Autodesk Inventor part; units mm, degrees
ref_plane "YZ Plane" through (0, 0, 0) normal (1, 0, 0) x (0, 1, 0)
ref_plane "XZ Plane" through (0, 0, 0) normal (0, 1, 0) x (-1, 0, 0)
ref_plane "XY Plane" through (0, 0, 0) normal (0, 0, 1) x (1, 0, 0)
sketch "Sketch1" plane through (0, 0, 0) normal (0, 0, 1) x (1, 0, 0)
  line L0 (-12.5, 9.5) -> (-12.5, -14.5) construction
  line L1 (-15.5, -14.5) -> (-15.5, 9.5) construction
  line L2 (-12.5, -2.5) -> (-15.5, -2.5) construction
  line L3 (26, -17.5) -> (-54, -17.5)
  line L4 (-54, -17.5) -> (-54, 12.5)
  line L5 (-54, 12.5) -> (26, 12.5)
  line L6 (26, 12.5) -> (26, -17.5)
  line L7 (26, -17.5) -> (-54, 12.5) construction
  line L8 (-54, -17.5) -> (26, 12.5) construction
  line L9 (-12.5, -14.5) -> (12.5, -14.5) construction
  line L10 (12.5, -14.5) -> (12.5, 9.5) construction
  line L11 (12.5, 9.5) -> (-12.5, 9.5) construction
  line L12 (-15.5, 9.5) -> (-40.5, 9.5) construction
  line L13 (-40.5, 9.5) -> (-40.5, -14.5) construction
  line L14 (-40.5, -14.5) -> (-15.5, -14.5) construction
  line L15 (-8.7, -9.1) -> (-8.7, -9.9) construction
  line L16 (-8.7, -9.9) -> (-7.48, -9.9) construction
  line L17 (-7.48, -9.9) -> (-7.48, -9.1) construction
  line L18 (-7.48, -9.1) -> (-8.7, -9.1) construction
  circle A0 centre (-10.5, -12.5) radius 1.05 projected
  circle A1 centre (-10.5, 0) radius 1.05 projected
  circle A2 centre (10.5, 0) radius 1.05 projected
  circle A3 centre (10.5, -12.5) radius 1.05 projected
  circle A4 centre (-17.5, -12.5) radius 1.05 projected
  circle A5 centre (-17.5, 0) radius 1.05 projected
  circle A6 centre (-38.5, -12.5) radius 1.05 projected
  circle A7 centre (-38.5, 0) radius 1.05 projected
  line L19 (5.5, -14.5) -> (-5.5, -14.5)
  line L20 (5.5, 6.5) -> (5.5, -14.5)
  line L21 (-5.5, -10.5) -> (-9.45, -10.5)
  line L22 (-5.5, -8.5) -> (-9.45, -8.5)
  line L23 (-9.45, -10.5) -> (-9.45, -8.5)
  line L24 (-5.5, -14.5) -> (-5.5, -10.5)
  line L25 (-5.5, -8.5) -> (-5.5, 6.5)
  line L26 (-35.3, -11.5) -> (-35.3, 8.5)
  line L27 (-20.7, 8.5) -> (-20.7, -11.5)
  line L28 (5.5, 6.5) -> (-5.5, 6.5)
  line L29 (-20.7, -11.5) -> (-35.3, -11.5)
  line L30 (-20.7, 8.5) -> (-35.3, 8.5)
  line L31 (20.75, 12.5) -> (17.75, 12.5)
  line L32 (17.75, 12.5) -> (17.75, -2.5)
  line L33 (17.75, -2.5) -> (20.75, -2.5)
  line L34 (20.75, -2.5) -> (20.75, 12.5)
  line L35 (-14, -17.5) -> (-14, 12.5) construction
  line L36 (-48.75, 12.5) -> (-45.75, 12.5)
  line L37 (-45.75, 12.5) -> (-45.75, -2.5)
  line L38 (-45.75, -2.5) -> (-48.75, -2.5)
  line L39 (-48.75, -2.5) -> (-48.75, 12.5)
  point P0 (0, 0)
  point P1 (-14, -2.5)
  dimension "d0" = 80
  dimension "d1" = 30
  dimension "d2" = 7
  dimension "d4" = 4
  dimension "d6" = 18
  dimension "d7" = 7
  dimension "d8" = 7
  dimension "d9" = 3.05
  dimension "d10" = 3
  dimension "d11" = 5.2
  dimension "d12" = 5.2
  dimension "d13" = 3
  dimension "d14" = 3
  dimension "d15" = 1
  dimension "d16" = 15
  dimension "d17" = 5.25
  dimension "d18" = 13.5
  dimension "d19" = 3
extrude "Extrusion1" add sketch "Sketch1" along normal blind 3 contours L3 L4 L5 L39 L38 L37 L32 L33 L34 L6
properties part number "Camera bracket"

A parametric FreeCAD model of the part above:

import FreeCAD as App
import Part
import Sketcher

V = App.Vector
Q = App.Units.Quantity


def add_polygon(sketch, points):
    """Adds a closed chain of lines whose ends are joined by coincident constraints."""
    first, n = sketch.GeometryCount, len(points)
    for a, b in zip(points, points[1:] + points[:1]):
        sketch.addGeometry(Part.LineSegment(App.Vector(*a, 0), App.Vector(*b, 0)), False)
    for i in range(n):
        sketch.addConstraint(Sketcher.Constraint("Coincident", first + i, 2, first + (i + 1) % n, 1))

doc = App.newDocument("Part")
body = doc.addObject("PartDesign::Body", "Body")

# Sketch on XY plane
sketch1 = body.newObject("Sketcher::SketchObject", "Sketch")
sketch1.AttachmentSupport = (doc.getObject("XY_Plane"), [""])
sketch1.MapMode = "FlatFace"
add_polygon(sketch1, [(-54, -17.5), (26, -17.5), (26, 12.5), (20.8, 12.5), (20.8, -2.5), (17.8, -2.5), (17.8, 12.5), (-45.8, 12.5), (-45.8, -2.5), (-48.8, -2.5), (-48.8, 12.5), (-54, 12.5)])  # lines 0-11
sketch1.addGeometry(Part.Circle(V(-38.5, -12.5, 0), V(0, 0, 1), 1.1), False)  # 12
sketch1.addGeometry(Part.Circle(V(-17.5, -12.5, 0), V(0, 0, 1), 1.1), False)  # 13
sketch1.addGeometry(Part.Circle(V(-10.5, -12.5, 0), V(0, 0, 1), 1.1), False)  # 14
sketch1.addGeometry(Part.Circle(V(10.5, -12.5, 0), V(0, 0, 1), 1.1), False)  # 15
add_polygon(sketch1, [(5.5, 6.5), (5.5, -14.5), (-5.5, -14.5), (-5.5, -10.5), (-9.4, -10.5), (-9.4, -8.5), (-5.5, -8.5), (-5.5, 6.5)])  # lines 16-23
sketch1.addGeometry(Part.Circle(V(-38.5, 0, 0), V(0, 0, 1), 1.1), False)  # 24
add_polygon(sketch1, [(-20.7, -11.5), (-35.3, -11.5), (-35.3, 8.5), (-20.7, 8.5)])  # lines 25-28
sketch1.addGeometry(Part.Circle(V(-17.5, 0, 0), V(0, 0, 1), 1.1), False)  # 29
sketch1.addGeometry(Part.Circle(V(-10.5, 0, 0), V(0, 0, 1), 1.1), False)  # 30
sketch1.addGeometry(Part.Circle(V(10.5, 0, 0), V(0, 0, 1), 1.1), False)  # 31
sketch1.addConstraint(Sketcher.Constraint("Horizontal", 0))
sketch1.addConstraint(Sketcher.Constraint("Vertical", 1))
sketch1.addConstraint(Sketcher.Constraint("Horizontal", 2))
sketch1.addConstraint(Sketcher.Constraint("Vertical", 3))
sketch1.addConstraint(Sketcher.Constraint("Horizontal", 4))
sketch1.addConstraint(Sketcher.Constraint("Vertical", 5))
sketch1.addConstraint(Sketcher.Constraint("Horizontal", 6))
sketch1.addConstraint(Sketcher.Constraint("Vertical", 7))
sketch1.addConstraint(Sketcher.Constraint("Horizontal", 8))
sketch1.addConstraint(Sketcher.Constraint("Vertical", 9))
sketch1.addConstraint(Sketcher.Constraint("Horizontal", 10))
sketch1.addConstraint(Sketcher.Constraint("Vertical", 11))
sketch1.addConstraint(Sketcher.Constraint("Vertical", 16))
sketch1.addConstraint(Sketcher.Constraint("Horizontal", 17))
sketch1.addConstraint(Sketcher.Constraint("Vertical", 18))
sketch1.addConstraint(Sketcher.Constraint("Horizontal", 19))
sketch1.addConstraint(Sketcher.Constraint("Vertical", 20))
sketch1.addConstraint(Sketcher.Constraint("Horizontal", 21))
sketch1.addConstraint(Sketcher.Constraint("Vertical", 22))
sketch1.addConstraint(Sketcher.Constraint("Horizontal", 23))
sketch1.addConstraint(Sketcher.Constraint("Horizontal", 25))
sketch1.addConstraint(Sketcher.Constraint("Vertical", 26))
sketch1.addConstraint(Sketcher.Constraint("Horizontal", 27))
sketch1.addConstraint(Sketcher.Constraint("Vertical", 28))
sketch1.addConstraint(Sketcher.Constraint("Equal", 12, 13))
sketch1.addConstraint(Sketcher.Constraint("Equal", 13, 14))
sketch1.addConstraint(Sketcher.Constraint("Equal", 14, 15))
sketch1.addConstraint(Sketcher.Constraint("Equal", 15, 24))
sketch1.addConstraint(Sketcher.Constraint("Equal", 24, 29))
sketch1.addConstraint(Sketcher.Constraint("Equal", 29, 30))
sketch1.addConstraint(Sketcher.Constraint("Equal", 30, 31))
sketch1.addConstraint(Sketcher.Constraint("Symmetric", 30, 3, 31, 3, -1, 1))
sketch1.addConstraint(Sketcher.Constraint("Symmetric", 14, 3, 15, 3, -2))
sketch1.addConstraint(Sketcher.Constraint("PointOnObject", 24, 3, -1))
sketch1.addConstraint(Sketcher.Constraint("PointOnObject", 29, 3, -1))
sketch1.addConstraint(Sketcher.Constraint("PointOnObject", 30, 3, -1))
sketch1.addConstraint(Sketcher.Constraint("Horizontal", 12, 3, 13, 3))
sketch1.addConstraint(Sketcher.Constraint("Horizontal", 13, 3, 14, 3))
sketch1.addConstraint(Sketcher.Constraint("Horizontal", 2, 2, 5, 2))
sketch1.addConstraint(Sketcher.Constraint("Horizontal", 4, 2, 7, 2))
sketch1.addConstraint(Sketcher.Constraint("Horizontal", 6, 2, 9, 2))
sketch1.addConstraint(Sketcher.Constraint("Vertical", 12, 3, 24, 3))
sketch1.addConstraint(Sketcher.Constraint("Vertical", 13, 3, 29, 3))
sketch1.addConstraint(Sketcher.Constraint("Vertical", 14, 3, 30, 3))
sketch1.addConstraint(Sketcher.Constraint("Vertical", 18, 2, 21, 2))
sketch1.addConstraint(Sketcher.Constraint("Equal", 4, 8))
sketch1.addConstraint(Sketcher.Constraint("Equal", 2, 10))
sketch1.addConstraint(Sketcher.Constraint("Equal", 9, 22))
sketch1.addConstraint(Sketcher.Constraint("DistanceX", 0, 1, 0, 2, Q("80 mm")))
sketch1.addConstraint(Sketcher.Constraint("DistanceX", 4, 2, 4, 1, Q("3 mm")))
sketch1.addConstraint(Sketcher.Constraint("DistanceY", 1, 1, 1, 2, Q("30 mm")))
sketch1.addConstraint(Sketcher.Constraint("DistanceY", 3, 2, 3, 1, Q("15 mm")))
sketch1.addConstraint(Sketcher.Constraint("DistanceY", 18, 1, 18, 2, Q("4 mm")))
sketch1.addConstraint(Sketcher.Constraint("DistanceX", 13, 3, 14, 3, Q("7 mm")))
sketch1.addConstraint(Sketcher.Constraint("DistanceY", 14, 3, 20, 2, Q("4 mm")))
sketch1.addConstraint(Sketcher.Constraint("DistanceY", 12, 3, 25, 2, Q("1 mm")))
sketch1.addConstraint(Sketcher.Constraint("DistanceY", 26, 2, 6, 2, Q("4 mm")))
sketch1.addConstraint(Sketcher.Constraint("DistanceY", 28, 2, 19, 2, Q("1 mm")))
sketch1.addConstraint(Sketcher.Constraint("Diameter", 12, Q("2.1 mm")))
sketch1.addConstraint(Sketcher.Constraint("DistanceX", 2, 2, 2, 1, Q("5.25 mm")))
sketch1.addConstraint(Sketcher.Constraint("DistanceX", 17, 2, 17, 1, Q("11 mm")))
sketch1.addConstraint(Sketcher.Constraint("DistanceY", 26, 1, 26, 2, Q("20 mm")))
sketch1.addConstraint(Sketcher.Constraint("DistanceX", 25, 2, 25, 1, Q("14.6 mm")))
sketch1.addConstraint(Sketcher.Constraint("DistanceX", -1, 1, 0, 2, Q("26 mm")))
sketch1.addConstraint(Sketcher.Constraint("DistanceX", 12, 3, 13, 3, Q("21 mm")))
sketch1.addConstraint(Sketcher.Constraint("DistanceX", 14, 3, 15, 3, Q("21 mm")))
sketch1.addConstraint(Sketcher.Constraint("DistanceX", 16, 2, 15, 3, Q("5 mm")))
sketch1.addConstraint(Sketcher.Constraint("DistanceX", 19, 2, 19, 1, Q("3.95 mm")))
sketch1.addConstraint(Sketcher.Constraint("DistanceY", 12, 3, -1, 1, Q("12.5 mm")))
sketch1.addConstraint(Sketcher.Constraint("DistanceX", 25, 2, -1, 1, Q("35.3 mm")))
pad1 = body.newObject("PartDesign::Pad", "Pad")
pad1.Profile = sketch1
pad1.Length = 3

doc.recompute()
